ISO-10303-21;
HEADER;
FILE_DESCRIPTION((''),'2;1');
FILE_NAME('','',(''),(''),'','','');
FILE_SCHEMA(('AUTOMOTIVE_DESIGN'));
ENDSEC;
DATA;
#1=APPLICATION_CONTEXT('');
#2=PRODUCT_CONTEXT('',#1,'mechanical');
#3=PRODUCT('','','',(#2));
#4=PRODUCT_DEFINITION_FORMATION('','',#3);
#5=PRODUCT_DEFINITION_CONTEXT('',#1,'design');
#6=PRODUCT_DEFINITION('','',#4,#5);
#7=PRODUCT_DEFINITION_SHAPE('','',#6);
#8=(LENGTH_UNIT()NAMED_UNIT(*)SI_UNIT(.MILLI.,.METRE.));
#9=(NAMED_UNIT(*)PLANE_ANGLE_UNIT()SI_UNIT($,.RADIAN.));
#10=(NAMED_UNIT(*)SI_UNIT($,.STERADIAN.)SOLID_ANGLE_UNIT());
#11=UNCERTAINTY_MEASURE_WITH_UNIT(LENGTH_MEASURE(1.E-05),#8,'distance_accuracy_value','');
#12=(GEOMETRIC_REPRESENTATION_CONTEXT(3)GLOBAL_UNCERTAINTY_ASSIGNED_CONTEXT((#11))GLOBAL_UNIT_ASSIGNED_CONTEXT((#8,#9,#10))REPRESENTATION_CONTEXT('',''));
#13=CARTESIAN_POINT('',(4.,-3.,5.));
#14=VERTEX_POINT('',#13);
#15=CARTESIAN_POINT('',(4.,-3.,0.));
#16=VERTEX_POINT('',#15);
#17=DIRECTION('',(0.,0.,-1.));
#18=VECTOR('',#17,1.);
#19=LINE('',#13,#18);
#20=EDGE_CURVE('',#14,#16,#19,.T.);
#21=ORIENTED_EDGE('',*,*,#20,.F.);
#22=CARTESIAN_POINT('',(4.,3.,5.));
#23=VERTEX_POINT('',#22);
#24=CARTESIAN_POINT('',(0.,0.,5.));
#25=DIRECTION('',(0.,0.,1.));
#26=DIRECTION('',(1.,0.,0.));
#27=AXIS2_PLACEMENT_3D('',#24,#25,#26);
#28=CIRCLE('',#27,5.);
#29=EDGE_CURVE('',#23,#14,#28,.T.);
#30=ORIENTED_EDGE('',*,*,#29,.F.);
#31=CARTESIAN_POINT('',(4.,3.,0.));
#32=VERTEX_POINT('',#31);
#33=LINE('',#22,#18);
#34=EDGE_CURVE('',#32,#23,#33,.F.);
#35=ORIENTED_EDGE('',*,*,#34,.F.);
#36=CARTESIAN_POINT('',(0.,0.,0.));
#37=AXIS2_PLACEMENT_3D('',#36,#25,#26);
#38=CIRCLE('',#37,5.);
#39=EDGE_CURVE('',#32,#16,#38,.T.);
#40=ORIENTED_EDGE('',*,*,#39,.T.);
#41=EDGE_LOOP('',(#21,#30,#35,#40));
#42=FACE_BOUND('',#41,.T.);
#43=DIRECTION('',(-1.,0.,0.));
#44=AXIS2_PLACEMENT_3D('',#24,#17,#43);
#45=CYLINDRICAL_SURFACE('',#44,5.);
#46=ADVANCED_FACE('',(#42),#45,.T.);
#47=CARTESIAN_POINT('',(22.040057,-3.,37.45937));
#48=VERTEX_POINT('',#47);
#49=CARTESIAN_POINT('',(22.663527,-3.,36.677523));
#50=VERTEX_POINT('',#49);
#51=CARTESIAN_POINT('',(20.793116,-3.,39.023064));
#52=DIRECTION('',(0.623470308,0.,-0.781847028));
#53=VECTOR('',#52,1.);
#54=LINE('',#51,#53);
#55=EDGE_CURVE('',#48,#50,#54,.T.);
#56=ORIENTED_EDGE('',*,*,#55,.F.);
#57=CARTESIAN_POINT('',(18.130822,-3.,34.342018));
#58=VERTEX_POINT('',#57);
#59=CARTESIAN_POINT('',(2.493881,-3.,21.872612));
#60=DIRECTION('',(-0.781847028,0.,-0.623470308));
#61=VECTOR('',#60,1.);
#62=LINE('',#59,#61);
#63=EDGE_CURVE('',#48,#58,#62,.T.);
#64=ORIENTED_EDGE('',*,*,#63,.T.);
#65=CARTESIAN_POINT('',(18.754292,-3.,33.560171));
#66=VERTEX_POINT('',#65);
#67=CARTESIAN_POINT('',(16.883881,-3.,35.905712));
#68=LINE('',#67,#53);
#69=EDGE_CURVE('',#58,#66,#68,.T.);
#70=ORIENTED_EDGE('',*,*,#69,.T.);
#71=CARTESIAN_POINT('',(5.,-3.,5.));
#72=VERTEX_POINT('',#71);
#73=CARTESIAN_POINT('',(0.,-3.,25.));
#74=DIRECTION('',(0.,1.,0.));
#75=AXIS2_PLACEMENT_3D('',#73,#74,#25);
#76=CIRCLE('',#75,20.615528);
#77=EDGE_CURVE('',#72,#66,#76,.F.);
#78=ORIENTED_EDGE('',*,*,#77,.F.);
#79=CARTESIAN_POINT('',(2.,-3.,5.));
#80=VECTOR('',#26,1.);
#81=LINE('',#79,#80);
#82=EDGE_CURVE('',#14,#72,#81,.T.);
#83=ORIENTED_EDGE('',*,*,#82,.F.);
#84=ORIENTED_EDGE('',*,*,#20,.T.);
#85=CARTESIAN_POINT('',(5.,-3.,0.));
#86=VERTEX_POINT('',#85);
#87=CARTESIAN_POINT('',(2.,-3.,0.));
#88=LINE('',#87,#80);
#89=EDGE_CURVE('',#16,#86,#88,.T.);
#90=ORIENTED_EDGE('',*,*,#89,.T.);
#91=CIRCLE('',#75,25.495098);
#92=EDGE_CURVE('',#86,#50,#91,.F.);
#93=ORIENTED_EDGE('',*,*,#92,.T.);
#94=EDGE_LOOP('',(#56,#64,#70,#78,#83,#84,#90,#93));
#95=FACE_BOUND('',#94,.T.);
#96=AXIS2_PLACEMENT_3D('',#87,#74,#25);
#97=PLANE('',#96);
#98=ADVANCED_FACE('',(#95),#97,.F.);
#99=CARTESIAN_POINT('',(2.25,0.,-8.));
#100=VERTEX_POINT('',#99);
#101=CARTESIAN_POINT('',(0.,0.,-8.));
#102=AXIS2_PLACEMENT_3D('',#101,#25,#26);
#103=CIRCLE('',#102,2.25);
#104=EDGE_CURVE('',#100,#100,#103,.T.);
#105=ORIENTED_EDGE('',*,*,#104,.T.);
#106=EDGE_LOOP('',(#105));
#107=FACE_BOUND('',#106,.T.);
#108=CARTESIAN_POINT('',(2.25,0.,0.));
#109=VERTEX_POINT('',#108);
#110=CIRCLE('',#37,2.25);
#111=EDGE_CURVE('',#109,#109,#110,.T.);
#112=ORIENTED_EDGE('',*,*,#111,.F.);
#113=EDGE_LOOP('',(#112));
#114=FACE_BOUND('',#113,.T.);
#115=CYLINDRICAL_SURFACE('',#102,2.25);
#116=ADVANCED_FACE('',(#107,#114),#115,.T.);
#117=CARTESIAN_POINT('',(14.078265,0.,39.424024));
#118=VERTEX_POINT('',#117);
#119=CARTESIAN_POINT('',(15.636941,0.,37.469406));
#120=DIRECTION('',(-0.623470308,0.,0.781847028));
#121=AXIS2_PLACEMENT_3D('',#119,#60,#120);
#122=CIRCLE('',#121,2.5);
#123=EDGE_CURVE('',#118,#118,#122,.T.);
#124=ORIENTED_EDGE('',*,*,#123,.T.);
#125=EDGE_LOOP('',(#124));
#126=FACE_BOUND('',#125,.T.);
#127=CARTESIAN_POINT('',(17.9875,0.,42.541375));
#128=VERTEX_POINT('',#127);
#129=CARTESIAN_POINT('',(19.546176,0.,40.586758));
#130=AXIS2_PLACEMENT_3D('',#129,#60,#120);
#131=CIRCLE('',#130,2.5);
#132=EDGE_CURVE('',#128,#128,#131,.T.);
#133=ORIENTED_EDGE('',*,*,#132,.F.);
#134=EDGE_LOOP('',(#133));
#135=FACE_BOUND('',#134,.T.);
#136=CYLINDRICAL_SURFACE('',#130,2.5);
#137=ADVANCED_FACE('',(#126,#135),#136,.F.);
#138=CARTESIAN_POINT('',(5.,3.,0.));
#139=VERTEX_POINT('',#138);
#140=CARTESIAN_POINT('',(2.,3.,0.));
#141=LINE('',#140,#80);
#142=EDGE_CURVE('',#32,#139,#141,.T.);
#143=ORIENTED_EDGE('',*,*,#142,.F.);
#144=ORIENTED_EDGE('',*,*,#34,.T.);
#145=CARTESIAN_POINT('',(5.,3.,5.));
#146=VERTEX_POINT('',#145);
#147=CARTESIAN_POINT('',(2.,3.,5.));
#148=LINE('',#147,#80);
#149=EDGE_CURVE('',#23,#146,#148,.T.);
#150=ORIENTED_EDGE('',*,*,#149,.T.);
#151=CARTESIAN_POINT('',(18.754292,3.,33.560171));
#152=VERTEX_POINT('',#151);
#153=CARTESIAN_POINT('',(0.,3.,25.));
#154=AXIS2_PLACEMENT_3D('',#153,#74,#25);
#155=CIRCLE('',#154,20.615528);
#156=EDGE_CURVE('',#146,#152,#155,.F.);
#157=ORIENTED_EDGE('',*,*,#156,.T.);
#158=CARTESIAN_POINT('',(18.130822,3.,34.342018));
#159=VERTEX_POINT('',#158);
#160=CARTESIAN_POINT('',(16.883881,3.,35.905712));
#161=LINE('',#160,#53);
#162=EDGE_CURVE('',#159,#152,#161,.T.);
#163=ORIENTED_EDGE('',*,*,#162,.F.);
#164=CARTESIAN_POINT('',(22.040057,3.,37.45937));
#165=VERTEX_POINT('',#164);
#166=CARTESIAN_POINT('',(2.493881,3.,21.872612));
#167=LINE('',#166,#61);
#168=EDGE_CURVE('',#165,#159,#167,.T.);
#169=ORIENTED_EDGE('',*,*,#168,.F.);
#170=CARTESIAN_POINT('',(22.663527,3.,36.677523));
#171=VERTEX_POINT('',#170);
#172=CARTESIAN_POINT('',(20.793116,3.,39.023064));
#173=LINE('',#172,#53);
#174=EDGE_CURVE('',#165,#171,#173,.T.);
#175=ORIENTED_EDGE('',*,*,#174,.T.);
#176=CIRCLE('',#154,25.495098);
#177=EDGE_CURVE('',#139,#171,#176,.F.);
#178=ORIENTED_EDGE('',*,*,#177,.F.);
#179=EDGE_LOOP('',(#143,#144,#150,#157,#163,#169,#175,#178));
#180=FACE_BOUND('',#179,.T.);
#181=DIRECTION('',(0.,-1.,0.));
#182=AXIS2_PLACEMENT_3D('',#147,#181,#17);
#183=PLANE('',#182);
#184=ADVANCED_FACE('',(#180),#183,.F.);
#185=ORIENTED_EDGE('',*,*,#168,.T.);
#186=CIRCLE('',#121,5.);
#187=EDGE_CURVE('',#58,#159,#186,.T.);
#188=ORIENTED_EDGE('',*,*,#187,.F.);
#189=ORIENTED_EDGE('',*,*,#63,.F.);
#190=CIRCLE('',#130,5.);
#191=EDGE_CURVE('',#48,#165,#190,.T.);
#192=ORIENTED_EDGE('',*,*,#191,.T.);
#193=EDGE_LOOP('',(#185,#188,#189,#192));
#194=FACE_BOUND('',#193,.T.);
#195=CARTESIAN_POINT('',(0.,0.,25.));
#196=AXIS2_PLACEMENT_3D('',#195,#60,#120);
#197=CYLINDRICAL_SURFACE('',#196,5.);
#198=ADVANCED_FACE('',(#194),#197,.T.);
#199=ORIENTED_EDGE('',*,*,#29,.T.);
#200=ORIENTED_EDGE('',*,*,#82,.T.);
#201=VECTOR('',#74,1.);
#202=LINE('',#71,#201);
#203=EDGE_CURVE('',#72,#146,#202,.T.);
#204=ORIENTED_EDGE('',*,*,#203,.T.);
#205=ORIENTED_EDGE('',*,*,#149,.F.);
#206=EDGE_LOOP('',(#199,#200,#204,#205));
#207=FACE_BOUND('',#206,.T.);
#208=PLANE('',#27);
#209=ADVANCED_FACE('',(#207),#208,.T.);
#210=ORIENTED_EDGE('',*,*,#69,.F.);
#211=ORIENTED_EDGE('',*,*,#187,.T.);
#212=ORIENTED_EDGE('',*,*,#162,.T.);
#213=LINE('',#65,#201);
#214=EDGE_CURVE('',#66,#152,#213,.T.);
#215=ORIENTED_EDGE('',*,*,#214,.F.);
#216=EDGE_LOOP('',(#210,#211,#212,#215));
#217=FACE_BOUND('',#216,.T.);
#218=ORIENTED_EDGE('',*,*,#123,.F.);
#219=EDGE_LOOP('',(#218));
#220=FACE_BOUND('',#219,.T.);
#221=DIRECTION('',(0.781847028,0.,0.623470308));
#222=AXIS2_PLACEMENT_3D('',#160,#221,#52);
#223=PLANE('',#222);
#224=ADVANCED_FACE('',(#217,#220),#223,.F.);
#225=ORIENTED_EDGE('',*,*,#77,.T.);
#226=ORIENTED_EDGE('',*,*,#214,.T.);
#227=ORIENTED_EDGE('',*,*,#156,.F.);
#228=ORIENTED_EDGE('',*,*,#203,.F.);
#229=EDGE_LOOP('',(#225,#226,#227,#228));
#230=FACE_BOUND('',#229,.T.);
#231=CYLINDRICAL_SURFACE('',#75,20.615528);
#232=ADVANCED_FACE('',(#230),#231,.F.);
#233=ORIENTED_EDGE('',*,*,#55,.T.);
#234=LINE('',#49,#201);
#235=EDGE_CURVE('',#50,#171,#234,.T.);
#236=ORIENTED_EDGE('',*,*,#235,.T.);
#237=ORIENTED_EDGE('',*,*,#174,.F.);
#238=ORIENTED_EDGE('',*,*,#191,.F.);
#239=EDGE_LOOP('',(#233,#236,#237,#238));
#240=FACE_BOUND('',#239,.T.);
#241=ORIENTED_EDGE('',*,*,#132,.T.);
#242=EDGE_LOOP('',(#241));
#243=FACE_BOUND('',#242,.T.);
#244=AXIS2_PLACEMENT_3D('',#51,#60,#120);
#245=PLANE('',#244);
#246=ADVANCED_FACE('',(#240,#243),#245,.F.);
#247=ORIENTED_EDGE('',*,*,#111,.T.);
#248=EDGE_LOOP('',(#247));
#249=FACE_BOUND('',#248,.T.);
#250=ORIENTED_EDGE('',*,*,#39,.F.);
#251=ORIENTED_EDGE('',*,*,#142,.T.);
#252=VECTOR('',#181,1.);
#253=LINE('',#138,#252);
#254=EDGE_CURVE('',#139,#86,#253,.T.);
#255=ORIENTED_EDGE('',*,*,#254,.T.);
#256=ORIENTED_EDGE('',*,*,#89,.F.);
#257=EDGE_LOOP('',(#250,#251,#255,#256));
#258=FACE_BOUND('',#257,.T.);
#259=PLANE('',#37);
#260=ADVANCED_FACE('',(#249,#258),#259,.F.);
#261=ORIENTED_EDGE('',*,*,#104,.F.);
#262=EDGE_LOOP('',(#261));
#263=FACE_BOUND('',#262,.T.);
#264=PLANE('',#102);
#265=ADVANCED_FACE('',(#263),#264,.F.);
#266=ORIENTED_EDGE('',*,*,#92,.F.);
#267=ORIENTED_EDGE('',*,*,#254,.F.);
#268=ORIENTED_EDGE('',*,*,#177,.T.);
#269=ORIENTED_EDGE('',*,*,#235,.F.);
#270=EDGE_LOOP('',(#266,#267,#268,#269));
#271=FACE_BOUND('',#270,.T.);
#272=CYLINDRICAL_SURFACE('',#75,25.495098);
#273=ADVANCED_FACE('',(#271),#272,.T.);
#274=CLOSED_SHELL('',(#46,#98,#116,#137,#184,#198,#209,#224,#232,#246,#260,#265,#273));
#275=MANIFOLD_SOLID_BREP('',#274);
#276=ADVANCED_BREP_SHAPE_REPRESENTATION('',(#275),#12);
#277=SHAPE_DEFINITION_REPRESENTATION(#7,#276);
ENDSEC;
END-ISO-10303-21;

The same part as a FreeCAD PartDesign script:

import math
import FreeCAD as App
import Part
import Sketcher
from FreeCAD import Vector
Q = App.Units.Quantity

doc = App.newDocument("Part")
params = doc.addObject("Spreadsheet::Sheet", "Params")
for row, (alias, value) in enumerate([
    ("sketch1_diameter", "10 mm"),
    ("pad1_length", "5 mm"),
    ("sketch2_height", "5 mm"),
    ("sketch2_length", "5 mm"),
    ("pad2_length", "3 mm"),
    ("pad2_length2", "3 mm"),
    ("sketch3_length", "5 mm"),
    ("revolution_angle", "360 deg"),
    ("sketch4_width", "5 mm"),
    ("sketch4_height", "6 mm"),
    ("pad3_length", "3 mm"),
    ("sketch5_width", "6 mm"),
    ("sketch5_height", "5 mm"),
    ("pad4_length", "3 mm"),
    ("sketch6_diameter", "5 mm"),
    ("pocket1_length", "5 mm"),
    ("sketch7_diameter", "4.5 mm"),
    ("pad5_length", "8 mm"),
], start=1):
    params.set(f"A{row}", alias)
    params.set(f"B{row}", "=" + value)
    params.setAlias(f"B{row}", alias)

body = doc.addObject("PartDesign::Body", "Body")

# Sketch on XY plane
sketch1 = body.newObject("Sketcher::SketchObject", "Sketch")
sketch1.AttachmentSupport = (doc.getObject("XY_Plane"), [""])
sketch1.MapMode = "FlatFace"
sketch1.addGeometry(Part.Circle(Vector(0, 0, 0), Vector(0, 0, 1), 5), False)
sketch1.addConstraint(Sketcher.Constraint("Coincident", 0, 3, -1, 1))
sketch1.addConstraint(Sketcher.Constraint("Diameter", 0, Q("10 mm")))
sketch1.setExpression("Constraints[1]", "Params.sketch1_diameter")
pad1 = body.newObject("PartDesign::Pad", "Pad")
pad1.Profile = sketch1
pad1.setExpression("Length", "Params.pad1_length")
body2 = doc.addObject("PartDesign::Body", "Body001")

# Sketch on XZ plane
sketch2 = body2.newObject("Sketcher::SketchObject", "Sketch001")
sketch2.AttachmentSupport = (doc.getObject("XZ_Plane001"), [""])
sketch2.MapMode = "FlatFace"
sketch2.addGeometry(Part.ArcOfCircle(Part.Circle(Vector(0, 25, 0), Vector(0, 0, 1), 25.5), math.radians(-79), math.radians(27)), False)
sketch2.addGeometry(Part.LineSegment(Vector(5, 0, 0), Vector(5, 5, 0)), False)
sketch2.addGeometry(Part.ArcOfCircle(Part.Circle(Vector(0, 25, 0), Vector(0, 0, 1), 20.6), math.radians(-76), math.radians(25)), False)
sketch2.addGeometry(Part.LineSegment(Vector(18.8, 33.6, 0), Vector(22.7, 36.7, 0)), False)
sketch2.addConstraint(Sketcher.Constraint("Coincident", 0, 1, 1, 1))
sketch2.addConstraint(Sketcher.Constraint("Coincident", 1, 2, 2, 1))
sketch2.addConstraint(Sketcher.Constraint("Coincident", 2, 2, 3, 1))
sketch2.addConstraint(Sketcher.Constraint("Coincident", 3, 2, 0, 2))
sketch2.addConstraint(Sketcher.Constraint("Vertical", 1))
sketch2.addConstraint(Sketcher.Constraint("Coincident", 2, 3, 0, 3))
sketch2.addConstraint(Sketcher.Constraint("PointOnObject", 0, 3, -2))
sketch2.addConstraint(Sketcher.Constraint("PointOnObject", 0, 1, -1))
sketch2.addConstraint(Sketcher.Constraint("DistanceY", 1, 1, 1, 2, Q("5 mm")))
sketch2.addConstraint(Sketcher.Constraint("Distance", 3, Q("5 mm")))
sketch2.addConstraint(Sketcher.Constraint("DistanceY", -1, 1, 0, 3, Q("25 mm")))
sketch2.addConstraint(Sketcher.Constraint("DistanceX", -1, 1, 0, 1, Q("5 mm")))
sketch2.addConstraint(Sketcher.Constraint("Angle", 3, Q("38.57 deg")))
sketch2.setExpression("Constraints[8]", "Params.sketch2_height")
sketch2.setExpression("Constraints[9]", "Params.sketch2_length")
pad2 = body2.newObject("PartDesign::Pad", "Pad001")
pad2.Profile = sketch2
pad2.Type = "TwoLengths"
pad2.setExpression("Length", "Params.pad2_length")
pad2.setExpression("Length2", "Params.pad2_length2")
pad2.Reversed = True
body3 = doc.addObject("PartDesign::Body", "Body002")

# Sketch on XZ plane
sketch3 = body3.newObject("Sketcher::SketchObject", "Sketch002")
sketch3.AttachmentSupport = (doc.getObject("XZ_Plane002"), [""])
sketch3.MapMode = "FlatFace"
sketch3.addGeometry(Part.LineSegment(Vector(22.7, 36.7, 0), Vector(18.8, 33.6, 0)), False)
sketch3.addGeometry(Part.LineSegment(Vector(18.8, 33.6, 0), Vector(15.6, 37.5, 0)), False)
sketch3.addGeometry(Part.LineSegment(Vector(15.6, 37.5, 0), Vector(19.5, 40.6, 0)), False)
sketch3.addGeometry(Part.LineSegment(Vector(19.5, 40.6, 0), Vector(22.7, 36.7, 0)), False)
sketch3.addGeometry(Part.LineSegment(Vector(15.6, 37.5, 0), Vector(19.5, 40.6, 0)), True)  # axis
sketch3.addConstraint(Sketcher.Constraint("Coincident", 0, 2, 1, 1))
sketch3.addConstraint(Sketcher.Constraint("Coincident", 1, 2, 2, 1))
sketch3.addConstraint(Sketcher.Constraint("Coincident", 2, 2, 3, 1))
sketch3.addConstraint(Sketcher.Constraint("Coincident", 3, 2, 0, 1))
sketch3.addConstraint(Sketcher.Constraint("Coincident", 4, 1, 1, 2))
sketch3.addConstraint(Sketcher.Constraint("Coincident", 4, 2, 2, 2))
sketch3.addConstraint(Sketcher.Constraint("Perpendicular", 0, 1))
sketch3.addConstraint(Sketcher.Constraint("Perpendicular", 1, 2))
sketch3.addConstraint(Sketcher.Constraint("Perpendicular", 2, 3))
sketch3.addConstraint(Sketcher.Constraint("Equal", 0, 1))
sketch3.addConstraint(Sketcher.Constraint("Distance", 0, Q("5 mm")))
sketch3.addConstraint(Sketcher.Constraint("Angle", 0, Q("-141.43 deg")))
sketch3.addConstraint(Sketcher.Constraint("DistanceY", -1, 1, 0, 2, Q("33.560171 mm")))
sketch3.addConstraint(Sketcher.Constraint("DistanceX", -1, 1, 1, 2, Q("15.636941 mm")))
sketch3.setExpression("Constraints[10]", "Params.sketch3_length")
revolution = body3.newObject("PartDesign::Revolution", "Revolution")
revolution.Profile = sketch3
revolution.ReferenceAxis = (sketch3, ["Axis0"])
revolution.setExpression("Angle", "Params.revolution_angle")
body2.AllowCompound = True
doc.recompute()

boolean = body2.newObject("PartDesign::Boolean", "Boolean")
boolean.Type = "Fuse"
boolean.addObjects([body3])

# Sketch on an angled plane
sketch4 = body2.newObject("Sketcher::SketchObject", "Sketch003")
sketch4.Placement = App.Placement(Vector(-9.069109, 0, 11.372884), App.Rotation(Vector(0.781847028, 0, 0.623470308), Vector(0, 1, 0), Vector(-0.623470308, 0, 0.781847028), "ZXY"))
sketch4.addGeometry(Part.LineSegment(Vector(36, 3, 0), Vector(36, -3, 0)), False)
sketch4.addGeometry(Part.LineSegment(Vector(36, -3, 0), Vector(41, -3, 0)), False)
sketch4.addGeometry(Part.LineSegment(Vector(41, -3, 0), Vector(41, 3, 0)), False)
sketch4.addGeometry(Part.LineSegment(Vector(41, 3, 0), Vector(36, 3, 0)), False)
sketch4.addConstraint(Sketcher.Constraint("Coincident", 0, 2, 1, 1))
sketch4.addConstraint(Sketcher.Constraint("Coincident", 1, 2, 2, 1))
sketch4.addConstraint(Sketcher.Constraint("Coincident", 2, 2, 3, 1))
sketch4.addConstraint(Sketcher.Constraint("Coincident", 3, 2, 0, 1))
sketch4.addConstraint(Sketcher.Constraint("Vertical", 0))
sketch4.addConstraint(Sketcher.Constraint("Horizontal", 1))
sketch4.addConstraint(Sketcher.Constraint("Vertical", 2))
sketch4.addConstraint(Sketcher.Constraint("Horizontal", 3))
sketch4.addConstraint(Sketcher.Constraint("DistanceX", 1, 1, 1, 2, Q("5 mm")))
sketch4.addConstraint(Sketcher.Constraint("DistanceY", 0, 2, 0, 1, Q("6 mm")))
sketch4.addConstraint(Sketcher.Constraint("DistanceY", 0, 2, -1, 1, Q("3 mm")))
sketch4.addConstraint(Sketcher.Constraint("DistanceX", -1, 1, 0, 2, Q("35.586758 mm")))
sketch4.setExpression("Constraints[8]", "Params.sketch4_width")
sketch4.setExpression("Constraints[9]", "Params.sketch4_height")
pad3 = body2.newObject("PartDesign::Pad", "Pad002")
pad3.Profile = sketch4
pad3.setExpression("Length", "Params.pad3_length")
body.AllowCompound = True
doc.recompute()

boolean2 = body.newObject("PartDesign::Boolean", "Boolean001")
boolean2.Type = "Fuse"
boolean2.addObjects([body2])

# Sketch on YZ plane
sketch5 = body.newObject("Sketcher::SketchObject", "Sketch004")
sketch5.AttachmentSupport = (doc.getObject("YZ_Plane"), [""])
sketch5.MapMode = "FlatFace"
sketch5.AttachmentOffset = App.Placement(Vector(0, 0, 5), App.Rotation())
sketch5.addGeometry(Part.LineSegment(Vector(3, 0, 0), Vector(-3, 0, 0)), False)
sketch5.addGeometry(Part.LineSegment(Vector(-3, 0, 0), Vector(-3, 5, 0)), False)
sketch5.addGeometry(Part.LineSegment(Vector(-3, 5, 0), Vector(3, 5, 0)), False)
sketch5.addGeometry(Part.LineSegment(Vector(3, 5, 0), Vector(3, 0, 0)), False)
sketch5.addConstraint(Sketcher.Constraint("Coincident", 0, 2, 1, 1))
sketch5.addConstraint(Sketcher.Constraint("Coincident", 1, 2, 2, 1))
sketch5.addConstraint(Sketcher.Constraint("Coincident", 2, 2, 3, 1))
sketch5.addConstraint(Sketcher.Constraint("Coincident", 3, 2, 0, 1))
sketch5.addConstraint(Sketcher.Constraint("Horizontal", 0))
sketch5.addConstraint(Sketcher.Constraint("Vertical", 1))
sketch5.addConstraint(Sketcher.Constraint("Horizontal", 2))
sketch5.addConstraint(Sketcher.Constraint("Vertical", 3))
sketch5.addConstraint(Sketcher.Constraint("Symmetric", 0, 2, 3, 2, -1, 1))
sketch5.addConstraint(Sketcher.Constraint("DistanceX", 0, 2, 0, 1, Q("6 mm")))
sketch5.addConstraint(Sketcher.Constraint("DistanceY", 1, 1, 1, 2, Q("5 mm")))
sketch5.setExpression("Constraints[9]", "Params.sketch5_width")
sketch5.setExpression("Constraints[10]", "Params.sketch5_height")
pad4 = body.newObject("PartDesign::Pad", "Pad003")
pad4.Profile = sketch5
pad4.setExpression("Length", "Params.pad4_length")
pad4.Reversed = True

# Sketch on an angled plane
sketch6 = body.newObject("Sketcher::SketchObject", "Sketch005")
sketch6.Placement = App.Placement(Vector(27.823401, 0, 22.187287), App.Rotation(Vector(-0.623470308, 0, 0.781847028), Vector(0, 1, 0), Vector(-0.781847028, 0, -0.623470308), "ZXY"))
sketch6.addGeometry(Part.Circle(Vector(19.5, 0, 0), Vector(0, 0, 1), 2.5), False)
sketch6.addConstraint(Sketcher.Constraint("PointOnObject", 0, 3, -1))
sketch6.addConstraint(Sketcher.Constraint("Diameter", 0, Q("5 mm")))
sketch6.addConstraint(Sketcher.Constraint("DistanceX", -1, 1, 0, 3, Q("19.546176 mm")))
sketch6.setExpression("Constraints[1]", "Params.sketch6_diameter")
pocket1 = body.newObject("PartDesign::Pocket", "Pocket")
pocket1.Profile = sketch6
pocket1.setExpression("Length", "Params.pocket1_length")

# Sketch on XY plane
sketch7 = body.newObject("Sketcher::SketchObject", "Sketch006")
sketch7.AttachmentSupport = (doc.getObject("XY_Plane"), [""])
sketch7.MapMode = "FlatFace"
sketch7.addGeometry(Part.Circle(Vector(0, 0, 0), Vector(0, 0, 1), 2.2), False)
sketch7.addConstraint(Sketcher.Constraint("Coincident", 0, 3, -1, 1))
sketch7.addConstraint(Sketcher.Constraint("Diameter", 0, Q("4.5 mm")))
sketch7.setExpression("Constraints[1]", "Params.sketch7_diameter")
pad5 = body.newObject("PartDesign::Pad", "Pad004")
pad5.Profile = sketch7
pad5.setExpression("Length", "Params.pad5_length")
pad5.Reversed = True

doc.recompute()
